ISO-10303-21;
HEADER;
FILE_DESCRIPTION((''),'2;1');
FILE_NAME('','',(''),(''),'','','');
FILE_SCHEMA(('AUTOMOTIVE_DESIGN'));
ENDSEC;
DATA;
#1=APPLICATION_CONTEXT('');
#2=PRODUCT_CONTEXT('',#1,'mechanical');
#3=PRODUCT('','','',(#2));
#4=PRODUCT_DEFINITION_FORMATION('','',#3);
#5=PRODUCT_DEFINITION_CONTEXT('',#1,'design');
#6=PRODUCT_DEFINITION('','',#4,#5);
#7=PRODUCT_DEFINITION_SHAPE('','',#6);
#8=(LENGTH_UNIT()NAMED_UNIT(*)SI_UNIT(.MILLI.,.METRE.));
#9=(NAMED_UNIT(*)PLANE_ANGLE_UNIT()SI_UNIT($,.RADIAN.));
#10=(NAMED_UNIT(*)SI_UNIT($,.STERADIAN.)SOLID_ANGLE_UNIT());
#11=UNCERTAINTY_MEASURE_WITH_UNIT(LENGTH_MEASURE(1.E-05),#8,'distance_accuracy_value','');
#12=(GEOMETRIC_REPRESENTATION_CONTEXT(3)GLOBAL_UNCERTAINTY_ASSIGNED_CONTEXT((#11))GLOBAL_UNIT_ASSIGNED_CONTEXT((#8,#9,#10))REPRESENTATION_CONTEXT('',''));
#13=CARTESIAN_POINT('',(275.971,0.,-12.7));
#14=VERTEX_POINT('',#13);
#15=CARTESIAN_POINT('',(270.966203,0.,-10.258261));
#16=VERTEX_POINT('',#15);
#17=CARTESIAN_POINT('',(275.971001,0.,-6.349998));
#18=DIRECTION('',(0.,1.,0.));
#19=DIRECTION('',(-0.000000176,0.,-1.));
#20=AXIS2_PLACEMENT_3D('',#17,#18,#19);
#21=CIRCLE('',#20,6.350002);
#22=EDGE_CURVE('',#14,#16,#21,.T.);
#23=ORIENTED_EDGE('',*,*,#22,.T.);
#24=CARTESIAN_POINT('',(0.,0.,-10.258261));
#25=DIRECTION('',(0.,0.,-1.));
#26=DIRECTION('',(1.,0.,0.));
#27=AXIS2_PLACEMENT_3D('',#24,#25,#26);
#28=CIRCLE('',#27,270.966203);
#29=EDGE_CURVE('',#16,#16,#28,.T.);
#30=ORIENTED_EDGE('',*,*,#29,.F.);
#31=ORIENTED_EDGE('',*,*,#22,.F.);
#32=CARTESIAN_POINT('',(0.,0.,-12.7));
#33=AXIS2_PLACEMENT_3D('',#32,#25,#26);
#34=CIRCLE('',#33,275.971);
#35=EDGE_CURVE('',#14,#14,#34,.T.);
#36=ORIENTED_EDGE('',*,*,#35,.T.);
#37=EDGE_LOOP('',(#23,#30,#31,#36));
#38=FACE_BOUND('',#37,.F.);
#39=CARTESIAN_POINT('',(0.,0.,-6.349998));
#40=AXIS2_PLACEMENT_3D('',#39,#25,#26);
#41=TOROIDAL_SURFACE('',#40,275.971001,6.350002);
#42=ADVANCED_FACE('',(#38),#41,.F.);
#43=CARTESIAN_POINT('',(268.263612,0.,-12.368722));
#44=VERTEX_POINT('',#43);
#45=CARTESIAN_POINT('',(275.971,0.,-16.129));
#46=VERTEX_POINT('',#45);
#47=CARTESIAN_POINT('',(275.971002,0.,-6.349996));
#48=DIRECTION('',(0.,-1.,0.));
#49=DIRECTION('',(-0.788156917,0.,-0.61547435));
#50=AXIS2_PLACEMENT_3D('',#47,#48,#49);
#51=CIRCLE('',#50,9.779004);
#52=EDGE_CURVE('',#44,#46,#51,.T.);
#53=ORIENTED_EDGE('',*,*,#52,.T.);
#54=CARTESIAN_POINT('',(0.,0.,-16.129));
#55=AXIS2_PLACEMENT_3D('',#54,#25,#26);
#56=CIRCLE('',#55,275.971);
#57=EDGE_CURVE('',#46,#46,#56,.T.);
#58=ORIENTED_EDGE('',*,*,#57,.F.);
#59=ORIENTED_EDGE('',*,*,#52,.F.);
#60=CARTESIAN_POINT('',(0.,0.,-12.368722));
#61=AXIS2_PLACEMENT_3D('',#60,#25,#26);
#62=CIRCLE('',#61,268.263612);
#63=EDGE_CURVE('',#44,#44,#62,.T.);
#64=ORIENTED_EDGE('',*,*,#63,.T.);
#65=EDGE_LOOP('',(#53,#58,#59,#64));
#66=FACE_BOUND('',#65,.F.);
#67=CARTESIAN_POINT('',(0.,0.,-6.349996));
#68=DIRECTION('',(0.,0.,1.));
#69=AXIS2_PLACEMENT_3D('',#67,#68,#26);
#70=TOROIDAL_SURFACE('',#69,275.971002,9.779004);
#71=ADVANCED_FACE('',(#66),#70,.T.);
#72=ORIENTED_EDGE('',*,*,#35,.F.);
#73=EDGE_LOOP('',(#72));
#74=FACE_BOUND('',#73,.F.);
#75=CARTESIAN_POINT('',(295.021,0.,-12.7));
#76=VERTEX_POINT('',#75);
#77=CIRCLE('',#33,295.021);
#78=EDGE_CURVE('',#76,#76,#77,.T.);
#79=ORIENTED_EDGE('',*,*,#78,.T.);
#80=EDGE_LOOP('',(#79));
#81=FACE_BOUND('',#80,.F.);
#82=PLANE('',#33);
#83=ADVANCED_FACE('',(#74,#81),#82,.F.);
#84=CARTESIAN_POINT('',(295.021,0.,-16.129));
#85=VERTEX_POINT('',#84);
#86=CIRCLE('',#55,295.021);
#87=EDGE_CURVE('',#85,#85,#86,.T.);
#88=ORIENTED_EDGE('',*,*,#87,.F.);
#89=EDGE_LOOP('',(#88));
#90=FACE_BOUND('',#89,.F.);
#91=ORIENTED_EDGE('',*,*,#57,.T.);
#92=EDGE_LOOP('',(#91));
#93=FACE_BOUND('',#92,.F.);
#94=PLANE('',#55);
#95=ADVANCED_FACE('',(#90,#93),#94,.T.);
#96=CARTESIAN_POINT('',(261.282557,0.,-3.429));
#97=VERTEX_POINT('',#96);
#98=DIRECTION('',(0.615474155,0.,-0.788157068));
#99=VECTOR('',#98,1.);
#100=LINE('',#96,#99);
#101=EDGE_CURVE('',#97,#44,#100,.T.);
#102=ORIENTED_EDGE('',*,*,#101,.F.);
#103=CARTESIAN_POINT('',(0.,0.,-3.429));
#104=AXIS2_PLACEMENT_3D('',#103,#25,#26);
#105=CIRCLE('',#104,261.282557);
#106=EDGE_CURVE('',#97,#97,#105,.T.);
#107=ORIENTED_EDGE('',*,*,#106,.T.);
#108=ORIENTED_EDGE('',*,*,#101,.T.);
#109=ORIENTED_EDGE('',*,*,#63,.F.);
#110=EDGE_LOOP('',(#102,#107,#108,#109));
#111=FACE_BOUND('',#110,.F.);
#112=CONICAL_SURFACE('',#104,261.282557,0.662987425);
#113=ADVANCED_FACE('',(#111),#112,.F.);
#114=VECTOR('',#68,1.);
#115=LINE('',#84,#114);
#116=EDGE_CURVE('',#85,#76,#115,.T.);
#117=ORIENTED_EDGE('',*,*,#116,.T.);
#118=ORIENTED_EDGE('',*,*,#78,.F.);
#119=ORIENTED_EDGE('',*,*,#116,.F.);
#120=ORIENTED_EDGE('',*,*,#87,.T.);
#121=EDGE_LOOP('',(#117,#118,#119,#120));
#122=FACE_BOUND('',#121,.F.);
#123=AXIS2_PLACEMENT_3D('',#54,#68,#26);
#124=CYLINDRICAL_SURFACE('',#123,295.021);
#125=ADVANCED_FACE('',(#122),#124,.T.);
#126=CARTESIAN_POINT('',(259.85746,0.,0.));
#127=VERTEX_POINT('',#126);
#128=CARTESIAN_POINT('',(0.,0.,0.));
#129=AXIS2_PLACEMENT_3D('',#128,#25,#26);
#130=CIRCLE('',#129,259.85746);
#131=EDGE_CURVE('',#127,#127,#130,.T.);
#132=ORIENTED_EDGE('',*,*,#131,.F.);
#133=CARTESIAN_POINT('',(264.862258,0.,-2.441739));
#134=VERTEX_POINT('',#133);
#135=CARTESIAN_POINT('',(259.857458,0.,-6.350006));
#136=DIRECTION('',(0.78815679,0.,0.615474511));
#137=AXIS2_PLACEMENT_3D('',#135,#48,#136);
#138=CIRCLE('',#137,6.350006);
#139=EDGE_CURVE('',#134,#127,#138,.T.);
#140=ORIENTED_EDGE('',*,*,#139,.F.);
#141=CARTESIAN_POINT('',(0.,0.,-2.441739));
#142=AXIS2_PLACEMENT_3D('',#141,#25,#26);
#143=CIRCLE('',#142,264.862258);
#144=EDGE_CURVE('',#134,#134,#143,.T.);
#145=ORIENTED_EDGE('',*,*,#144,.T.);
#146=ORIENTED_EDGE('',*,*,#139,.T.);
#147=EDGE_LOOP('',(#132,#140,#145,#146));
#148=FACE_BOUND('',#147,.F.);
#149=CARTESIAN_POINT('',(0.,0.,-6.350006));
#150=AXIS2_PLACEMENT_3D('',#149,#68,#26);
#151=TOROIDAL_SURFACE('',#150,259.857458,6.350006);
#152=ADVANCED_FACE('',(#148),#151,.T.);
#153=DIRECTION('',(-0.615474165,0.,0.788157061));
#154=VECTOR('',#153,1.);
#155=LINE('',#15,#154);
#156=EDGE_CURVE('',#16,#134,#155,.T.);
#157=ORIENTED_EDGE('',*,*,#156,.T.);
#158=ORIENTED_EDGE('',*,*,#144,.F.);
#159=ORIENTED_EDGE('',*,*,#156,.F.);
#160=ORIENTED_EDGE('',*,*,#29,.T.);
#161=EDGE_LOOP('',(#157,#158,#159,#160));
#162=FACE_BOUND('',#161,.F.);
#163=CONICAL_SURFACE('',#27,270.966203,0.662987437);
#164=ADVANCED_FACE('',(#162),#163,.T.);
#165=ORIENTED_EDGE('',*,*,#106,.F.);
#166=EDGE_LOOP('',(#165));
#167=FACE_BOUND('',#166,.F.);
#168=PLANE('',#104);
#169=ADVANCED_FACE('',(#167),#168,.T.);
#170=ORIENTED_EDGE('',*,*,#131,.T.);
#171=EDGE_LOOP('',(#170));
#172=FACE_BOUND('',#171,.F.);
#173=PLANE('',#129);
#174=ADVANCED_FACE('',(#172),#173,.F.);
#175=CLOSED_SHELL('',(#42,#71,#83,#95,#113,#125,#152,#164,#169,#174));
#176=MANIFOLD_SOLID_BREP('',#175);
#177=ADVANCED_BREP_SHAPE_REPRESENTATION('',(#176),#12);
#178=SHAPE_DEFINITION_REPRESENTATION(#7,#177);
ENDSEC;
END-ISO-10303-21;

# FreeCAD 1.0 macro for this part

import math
import FreeCAD as App
import Part
import Sketcher

V = App.Vector
Q = App.Units.Quantity

doc = App.newDocument("Part")
body = doc.addObject("PartDesign::Body", "Body")

sketch1 = doc.addObject("Sketcher::SketchObject", "Sketch")
body.addObject(sketch1)
sketch1.AttachmentSupport = (doc.XZ_Plane, [""])
sketch1.MapMode = "FlatFace"
sketch1.addGeometry([
    Part.LineSegment(V(259.9, 0, 0), V(0, 0, 0)),
    Part.LineSegment(V(0, 0, 0), V(0, -3.4, 0)),
    Part.LineSegment(V(0, -3.4, 0), V(261.3, -3.4, 0)),
    Part.LineSegment(V(261.3, -3.4, 0), V(268.3, -12.4, 0)),
    Part.ArcOfCircle(Part.Circle(V(276, -6.3, 0), V(0, 0, 1), 9.8), math.radians(-142), math.radians(-90)),
    Part.LineSegment(V(276, -16.1, 0), V(295, -16.1, 0)),
    Part.LineSegment(V(295, -16.1, 0), V(295, -12.7, 0)),
    Part.LineSegment(V(295, -12.7, 0), V(276, -12.7, 0)),
    Part.ArcOfCircle(Part.Circle(V(276, -6.3, 0), V(0, 0, 1), 6.4), math.radians(-142), math.radians(-90)),
    Part.LineSegment(V(271, -10.3, 0), V(264.9, -2.4, 0)),
    Part.ArcOfCircle(Part.Circle(V(259.9, -6.4, 0), V(0, 0, 1), 6.4), math.radians(38), math.radians(90)),
], False)
sketch1.addConstraint([
    Sketcher.Constraint("Coincident", 0, 2, 1, 1),
    Sketcher.Constraint("Coincident", 1, 2, 2, 1),
    Sketcher.Constraint("Coincident", 2, 2, 3, 1),
    Sketcher.Constraint("Tangent", 3, 2, 4, 1),
    Sketcher.Constraint("Tangent", 4, 2, 5, 1),
    Sketcher.Constraint("Coincident", 5, 2, 6, 1),
    Sketcher.Constraint("Coincident", 6, 2, 7, 1),
    Sketcher.Constraint("Tangent", 7, 2, 8, 2),
    Sketcher.Constraint("Tangent", 8, 1, 9, 1),
    Sketcher.Constraint("Tangent", 9, 2, 10, 1),
    Sketcher.Constraint("Tangent", 10, 2, 0, 1),
    Sketcher.Constraint("Horizontal", 0),
    Sketcher.Constraint("Vertical", 1),
    Sketcher.Constraint("Horizontal", 2),
    Sketcher.Constraint("Horizontal", 5),
    Sketcher.Constraint("Vertical", 6),
    Sketcher.Constraint("Horizontal", 7),
    Sketcher.Constraint("Coincident", 0, 2, -1, 1),
    Sketcher.Constraint("Coincident", 8, 3, 4, 3),
    Sketcher.Constraint("Parallel", 3, 9),
    Sketcher.Constraint("Equal", 1, 6),
    Sketcher.Constraint("Radius", 8, Q("0.2500001 in")),
    Sketcher.Constraint("Radius", 4, Q("0.3850002 in")),
    Sketcher.Constraint("DistanceX", 5, 1, 5, 2, Q("0.75 in")),
    Sketcher.Constraint("DistanceY", 6, 2, -1, 1, Q("0.5 in")),
    Sketcher.Constraint("DistanceX", -1, 1, 4, 3, Q("10.8650001 in")),
    Sketcher.Constraint("Radius", 10, Q("6.350006 mm")),
    Sketcher.Constraint("DistanceX", 0, 2, 0, 1, Q("259.85746 mm")),
])
revolution = doc.addObject("PartDesign::Revolution", "Revolution")
body.addObject(revolution)
revolution.Profile = sketch1
revolution.ReferenceAxis = (sketch1, ["V_Axis"])
revolution.Angle = 360

doc.recompute()
